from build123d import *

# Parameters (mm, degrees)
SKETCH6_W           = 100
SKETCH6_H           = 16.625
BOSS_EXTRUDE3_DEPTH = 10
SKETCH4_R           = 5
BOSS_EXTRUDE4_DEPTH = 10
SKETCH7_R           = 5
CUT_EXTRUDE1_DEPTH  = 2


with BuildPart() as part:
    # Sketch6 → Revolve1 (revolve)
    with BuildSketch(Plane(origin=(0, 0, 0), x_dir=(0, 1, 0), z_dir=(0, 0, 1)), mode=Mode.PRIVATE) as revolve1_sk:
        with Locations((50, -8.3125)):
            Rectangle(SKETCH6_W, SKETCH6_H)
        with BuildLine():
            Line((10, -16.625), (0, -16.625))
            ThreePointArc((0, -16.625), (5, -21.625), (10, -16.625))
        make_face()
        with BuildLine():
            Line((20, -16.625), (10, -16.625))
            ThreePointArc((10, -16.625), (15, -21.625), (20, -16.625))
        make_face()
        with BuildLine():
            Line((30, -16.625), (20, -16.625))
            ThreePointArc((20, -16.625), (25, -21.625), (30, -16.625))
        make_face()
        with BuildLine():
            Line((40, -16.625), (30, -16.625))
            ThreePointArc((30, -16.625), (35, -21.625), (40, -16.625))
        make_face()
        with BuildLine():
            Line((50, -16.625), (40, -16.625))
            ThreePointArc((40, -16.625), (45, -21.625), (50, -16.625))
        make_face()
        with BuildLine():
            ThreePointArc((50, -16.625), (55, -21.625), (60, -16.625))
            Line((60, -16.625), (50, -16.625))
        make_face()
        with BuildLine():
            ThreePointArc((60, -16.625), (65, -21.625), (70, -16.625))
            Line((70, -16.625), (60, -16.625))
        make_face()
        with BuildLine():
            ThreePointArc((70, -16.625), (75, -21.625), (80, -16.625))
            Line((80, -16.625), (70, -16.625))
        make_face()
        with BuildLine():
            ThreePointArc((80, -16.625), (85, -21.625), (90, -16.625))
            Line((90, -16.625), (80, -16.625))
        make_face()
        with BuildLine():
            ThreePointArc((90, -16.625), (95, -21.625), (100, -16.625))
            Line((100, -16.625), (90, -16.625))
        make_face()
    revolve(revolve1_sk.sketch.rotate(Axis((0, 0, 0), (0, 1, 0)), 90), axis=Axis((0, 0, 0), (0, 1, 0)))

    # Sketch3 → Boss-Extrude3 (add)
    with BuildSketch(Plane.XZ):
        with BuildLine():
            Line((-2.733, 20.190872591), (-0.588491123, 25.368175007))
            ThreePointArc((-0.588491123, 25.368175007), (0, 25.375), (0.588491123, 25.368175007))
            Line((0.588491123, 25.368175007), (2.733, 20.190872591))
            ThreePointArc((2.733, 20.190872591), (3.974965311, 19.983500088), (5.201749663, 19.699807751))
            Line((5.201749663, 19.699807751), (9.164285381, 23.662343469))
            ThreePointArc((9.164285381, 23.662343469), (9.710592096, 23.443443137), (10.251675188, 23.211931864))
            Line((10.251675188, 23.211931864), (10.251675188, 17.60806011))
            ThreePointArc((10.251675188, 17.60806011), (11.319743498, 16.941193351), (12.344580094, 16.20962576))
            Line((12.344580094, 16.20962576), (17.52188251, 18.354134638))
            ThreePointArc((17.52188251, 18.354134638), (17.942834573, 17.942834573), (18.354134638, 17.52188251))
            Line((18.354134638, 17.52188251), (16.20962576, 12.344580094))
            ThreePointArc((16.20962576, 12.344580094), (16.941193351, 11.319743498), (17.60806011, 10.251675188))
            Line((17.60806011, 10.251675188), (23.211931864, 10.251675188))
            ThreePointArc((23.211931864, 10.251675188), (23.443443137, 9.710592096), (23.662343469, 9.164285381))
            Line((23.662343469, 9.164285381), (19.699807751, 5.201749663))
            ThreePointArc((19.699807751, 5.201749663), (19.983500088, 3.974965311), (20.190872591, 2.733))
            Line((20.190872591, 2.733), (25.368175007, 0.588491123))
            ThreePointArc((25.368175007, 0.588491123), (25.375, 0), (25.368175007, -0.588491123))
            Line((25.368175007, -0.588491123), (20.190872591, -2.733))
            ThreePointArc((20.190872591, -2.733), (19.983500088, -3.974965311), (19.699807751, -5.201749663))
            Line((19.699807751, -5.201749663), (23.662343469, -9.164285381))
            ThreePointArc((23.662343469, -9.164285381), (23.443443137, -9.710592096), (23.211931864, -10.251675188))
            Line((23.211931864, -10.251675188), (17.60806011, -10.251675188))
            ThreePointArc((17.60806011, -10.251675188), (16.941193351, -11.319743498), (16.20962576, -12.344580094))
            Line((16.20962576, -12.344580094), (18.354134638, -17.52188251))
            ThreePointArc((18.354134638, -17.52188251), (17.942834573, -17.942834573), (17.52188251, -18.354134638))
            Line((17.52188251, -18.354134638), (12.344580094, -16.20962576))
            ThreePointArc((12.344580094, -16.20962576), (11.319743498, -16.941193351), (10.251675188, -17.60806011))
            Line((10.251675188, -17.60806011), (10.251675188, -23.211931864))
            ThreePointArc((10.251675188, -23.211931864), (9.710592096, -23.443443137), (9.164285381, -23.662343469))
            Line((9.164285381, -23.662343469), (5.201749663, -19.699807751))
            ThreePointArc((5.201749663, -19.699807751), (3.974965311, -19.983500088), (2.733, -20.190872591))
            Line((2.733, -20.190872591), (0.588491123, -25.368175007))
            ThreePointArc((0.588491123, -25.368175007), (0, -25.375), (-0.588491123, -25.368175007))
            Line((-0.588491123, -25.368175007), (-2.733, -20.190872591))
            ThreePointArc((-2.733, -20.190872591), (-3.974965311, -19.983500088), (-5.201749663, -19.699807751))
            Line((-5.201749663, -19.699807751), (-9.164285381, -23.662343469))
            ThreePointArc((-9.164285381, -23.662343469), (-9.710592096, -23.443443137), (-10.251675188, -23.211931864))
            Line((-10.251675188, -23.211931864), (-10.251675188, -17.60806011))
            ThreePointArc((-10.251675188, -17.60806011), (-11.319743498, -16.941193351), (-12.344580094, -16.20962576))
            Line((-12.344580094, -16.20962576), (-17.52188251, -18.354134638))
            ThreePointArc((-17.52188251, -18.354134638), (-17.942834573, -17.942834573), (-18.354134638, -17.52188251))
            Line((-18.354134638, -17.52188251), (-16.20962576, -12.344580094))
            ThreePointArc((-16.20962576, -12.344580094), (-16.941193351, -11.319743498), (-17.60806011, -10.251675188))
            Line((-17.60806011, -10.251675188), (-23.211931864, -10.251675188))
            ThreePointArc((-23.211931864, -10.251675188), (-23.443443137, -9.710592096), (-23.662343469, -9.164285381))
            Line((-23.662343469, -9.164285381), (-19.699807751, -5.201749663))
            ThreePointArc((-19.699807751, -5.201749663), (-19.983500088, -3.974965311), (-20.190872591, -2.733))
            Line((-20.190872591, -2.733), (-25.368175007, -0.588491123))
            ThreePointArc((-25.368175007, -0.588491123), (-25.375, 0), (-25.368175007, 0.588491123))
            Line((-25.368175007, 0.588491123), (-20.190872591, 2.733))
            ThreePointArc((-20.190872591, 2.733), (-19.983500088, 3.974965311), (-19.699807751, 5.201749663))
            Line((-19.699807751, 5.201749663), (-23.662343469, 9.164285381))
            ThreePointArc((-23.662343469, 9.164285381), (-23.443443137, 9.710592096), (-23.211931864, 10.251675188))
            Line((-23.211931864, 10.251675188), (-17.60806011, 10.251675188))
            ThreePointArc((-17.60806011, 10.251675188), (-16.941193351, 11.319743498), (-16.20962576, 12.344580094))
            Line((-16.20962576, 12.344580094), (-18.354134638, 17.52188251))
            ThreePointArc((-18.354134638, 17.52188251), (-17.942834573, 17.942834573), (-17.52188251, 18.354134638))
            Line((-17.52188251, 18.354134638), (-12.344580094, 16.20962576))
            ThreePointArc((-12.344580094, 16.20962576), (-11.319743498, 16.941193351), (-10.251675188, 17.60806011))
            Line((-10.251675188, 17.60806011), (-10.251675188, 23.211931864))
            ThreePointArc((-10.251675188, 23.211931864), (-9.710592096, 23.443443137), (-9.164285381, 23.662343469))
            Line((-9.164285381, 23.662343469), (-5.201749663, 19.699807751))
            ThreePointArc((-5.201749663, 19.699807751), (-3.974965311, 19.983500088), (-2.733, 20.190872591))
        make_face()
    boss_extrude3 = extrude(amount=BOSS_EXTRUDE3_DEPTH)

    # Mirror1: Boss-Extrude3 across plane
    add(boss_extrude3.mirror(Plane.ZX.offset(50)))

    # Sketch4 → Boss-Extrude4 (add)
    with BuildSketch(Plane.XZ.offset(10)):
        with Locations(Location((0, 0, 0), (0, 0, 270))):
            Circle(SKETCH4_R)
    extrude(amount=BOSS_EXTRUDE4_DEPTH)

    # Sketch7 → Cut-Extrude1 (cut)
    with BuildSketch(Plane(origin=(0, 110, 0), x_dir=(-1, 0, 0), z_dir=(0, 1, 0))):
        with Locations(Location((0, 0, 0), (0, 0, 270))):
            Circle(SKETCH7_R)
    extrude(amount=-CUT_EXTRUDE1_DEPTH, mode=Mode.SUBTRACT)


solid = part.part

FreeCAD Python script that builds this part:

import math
import FreeCAD as App
import Part
import Sketcher
from FreeCAD import Vector

doc = App.newDocument("Part")
body = doc.addObject("PartDesign::Body", "Body")

# Sketch on XY plane
sketch1 = body.newObject("Sketcher::SketchObject", "Sketch")
sketch1.AttachmentSupport = (doc.getObject("XY_Plane"), [""])
sketch1.MapMode = "FlatFace"
sketch1.addGeometry([
    Part.LineSegment(Vector(0, 0, 0), Vector(17, 0, 0)),  # 0
    Part.ArcOfCircle(Part.Circle(Vector(17, 5, 0), Vector(0, 0, 1), 5), math.radians(-90), math.radians(90)),  # 1
    Part.ArcOfCircle(Part.Circle(Vector(17, 15, 0), Vector(0, 0, 1), 5), math.radians(-90), math.radians(90)),  # 2
    Part.ArcOfCircle(Part.Circle(Vector(17, 25, 0), Vector(0, 0, 1), 5), math.radians(-90), math.radians(90)),  # 3
    Part.ArcOfCircle(Part.Circle(Vector(17, 35, 0), Vector(0, 0, 1), 5), math.radians(-90), math.radians(90)),  # 4
    Part.ArcOfCircle(Part.Circle(Vector(17, 45, 0), Vector(0, 0, 1), 5), math.radians(-90), math.radians(90)),  # 5
    Part.ArcOfCircle(Part.Circle(Vector(17, 55, 0), Vector(0, 0, 1), 5), math.radians(-90), math.radians(90)),  # 6
    Part.ArcOfCircle(Part.Circle(Vector(17, 65, 0), Vector(0, 0, 1), 5), math.radians(-90), math.radians(90)),  # 7
    Part.ArcOfCircle(Part.Circle(Vector(17, 75, 0), Vector(0, 0, 1), 5), math.radians(-90), math.radians(90)),  # 8
    Part.ArcOfCircle(Part.Circle(Vector(17, 85, 0), Vector(0, 0, 1), 5), math.radians(-90), math.radians(90)),  # 9
    Part.ArcOfCircle(Part.Circle(Vector(17, 95, 0), Vector(0, 0, 1), 5), math.radians(-90), math.radians(90)),  # 10
    Part.LineSegment(Vector(17, 100, 0), Vector(0, 100, 0)),  # 11
    Part.LineSegment(Vector(0, 100, 0), Vector(0, 0, 0)),  # 12
], False)
sketch1.addConstraint([
    Sketcher.Constraint("Tangent", 0, 2, 1, 1),
    Sketcher.Constraint("Tangent", 1, 2, 2, 1),
    Sketcher.Constraint("Tangent", 2, 2, 3, 1),
    Sketcher.Constraint("Tangent", 3, 2, 4, 1),
    Sketcher.Constraint("Tangent", 4, 2, 5, 1),
    Sketcher.Constraint("Tangent", 5, 2, 6, 1),
    Sketcher.Constraint("Tangent", 6, 2, 7, 1),
    Sketcher.Constraint("Tangent", 7, 2, 8, 1),
    Sketcher.Constraint("Tangent", 8, 2, 9, 1),
    Sketcher.Constraint("Tangent", 9, 2, 10, 1),
    Sketcher.Constraint("Tangent", 10, 2, 11, 1),
    Sketcher.Constraint("Coincident", 11, 2, 12, 1),
    Sketcher.Constraint("Coincident", 12, 2, 0, 1),
    Sketcher.Constraint("Horizontal", 0),
    Sketcher.Constraint("Horizontal", 11),
    Sketcher.Constraint("Vertical", 12),
    Sketcher.Constraint("Coincident", 12, 2, -1, 1),
    Sketcher.Constraint("Equal", 1, 2),
    Sketcher.Constraint("Equal", 2, 3),
    Sketcher.Constraint("Equal", 3, 4),
    Sketcher.Constraint("Equal", 4, 5),
    Sketcher.Constraint("Equal", 5, 6),
    Sketcher.Constraint("Equal", 6, 7),
    Sketcher.Constraint("Equal", 7, 8),
    Sketcher.Constraint("Equal", 8, 9),
    Sketcher.Constraint("Equal", 9, 10),
    Sketcher.Constraint("Vertical", 1, 3, 2, 3),
    Sketcher.Constraint("Vertical", 2, 3, 3, 3),
    Sketcher.Constraint("Vertical", 3, 3, 4, 3),
    Sketcher.Constraint("Vertical", 4, 3, 5, 3),
    Sketcher.Constraint("Vertical", 5, 3, 6, 3),
    Sketcher.Constraint("Vertical", 6, 3, 7, 3),
    Sketcher.Constraint("Vertical", 7, 3, 8, 3),
    Sketcher.Constraint("Vertical", 8, 3, 9, 3),
    Sketcher.Constraint("Vertical", 9, 3, 10, 3),
    Sketcher.Constraint("Radius", 1, 5.0),
    Sketcher.Constraint("DistanceX", 0, 1, 0, 2, 16.625),
])
revolution = body.newObject("PartDesign::Revolution", "Revolution")
revolution.Profile = sketch1
revolution.ReferenceAxis = (sketch1, ["V_Axis"])
revolution.Angle = 360

# Sketch on XZ plane
sketch2 = body.newObject("Sketcher::SketchObject", "Sketch001")
sketch2.AttachmentSupport = (doc.getObject("XZ_Plane"), [""])
sketch2.MapMode = "FlatFace"
sketch2.addGeometry([
    Part.LineSegment(Vector(-0.588491, 25.368175, 0), Vector(-2.733, 20.190873, 0)),  # 0
    Part.ArcOfCircle(Part.Circle(Vector(0, 0, 0), Vector(0, 0, 1), 20.375), math.radians(97.708602), math.radians(104.791398)),  # 1
    Part.LineSegment(Vector(-5.20175, 19.699808, 0), Vector(-9.164285, 23.662343, 0)),  # 2
    Part.ArcOfCircle(Part.Circle(Vector(0.000001, -0.000002, 0), Vector(0, 0, 1), 25.375002), math.radians(111.17109), math.radians(113.828909)),  # 3
    Part.LineSegment(Vector(-10.251675, 23.211932, 0), Vector(-10.251675, 17.60806, 0)),  # 4
    Part.ArcOfCircle(Part.Circle(Vector(0, 0, 0), Vector(0, 0, 1), 20.375), math.radians(120.208602), math.radians(127.291398)),  # 5
    Part.LineSegment(Vector(-12.34458, 16.209626, 0), Vector(-17.521883, 18.354135, 0)),  # 6
    Part.ArcOfCircle(Part.Circle(Vector(-0.000001, 0.000001, 0), Vector(0, 0, 1), 25.374998), math.radians(133.67109), math.radians(136.32891)),  # 7
    Part.LineSegment(Vector(-18.354135, 17.521883, 0), Vector(-16.209626, 12.34458, 0)),  # 8
    Part.ArcOfCircle(Part.Circle(Vector(0, 0, 0), Vector(0, 0, 1), 20.375), math.radians(142.708602), math.radians(149.791398)),  # 9
    Part.LineSegment(Vector(-17.60806, 10.251675, 0), Vector(-23.211932, 10.251675, 0)),  # 10
    Part.ArcOfCircle(Part.Circle(Vector(0.000002, -0.000001, 0), Vector(0, 0, 1), 25.375002), math.radians(156.171091), math.radians(158.82891)),  # 11
    Part.LineSegment(Vector(-23.662343, 9.164285, 0), Vector(-19.699808, 5.20175, 0)),  # 12
    Part.ArcOfCircle(Part.Circle(Vector(0, 0, 0), Vector(0, 0, 1), 20.375), math.radians(165.208602), math.radians(172.291398)),  # 13
    Part.LineSegment(Vector(-20.190873, 2.733, 0), Vector(-25.368175, 0.588491, 0)),  # 14
    Part.ArcOfCircle(Part.Circle(Vector(-0.000001, 0, 0), Vector(0, 0, 1), 25.374999), math.radians(178.67109), math.radians(181.32891)),  # 15
    Part.LineSegment(Vector(-25.368175, -0.588491, 0), Vector(-20.190873, -2.733, 0)),  # 16
    Part.ArcOfCircle(Part.Circle(Vector(0, 0, 0), Vector(0, 0, 1), 20.375), math.radians(-172.291398), math.radians(-165.208602)),  # 17
    Part.LineSegment(Vector(-19.699808, -5.20175, 0), Vector(-23.662343, -9.164285, 0)),  # 18
    Part.ArcOfCircle(Part.Circle(Vector(0.000002, 0.000001, 0), Vector(0, 0, 1), 25.375002), math.radians(-158.82891), math.radians(-156.171091)),  # 19
    Part.LineSegment(Vector(-23.211932, -10.251675, 0), Vector(-17.60806, -10.251675, 0)),  # 20
    Part.ArcOfCircle(Part.Circle(Vector(0, 0, 0), Vector(0, 0, 1), 20.375), math.radians(-149.791398), math.radians(-142.708602)),  # 21
    Part.LineSegment(Vector(-16.209626, -12.34458, 0), Vector(-18.354135, -17.521883, 0)),  # 22
    Part.ArcOfCircle(Part.Circle(Vector(-0.000001, -0.000001, 0), Vector(0, 0, 1), 25.374998), math.radians(-136.32891), math.radians(-133.67109)),  # 23
    Part.LineSegment(Vector(-17.521883, -18.354135, 0), Vector(-12.34458, -16.209626, 0)),  # 24
    Part.ArcOfCircle(Part.Circle(Vector(0, 0, 0), Vector(0, 0, 1), 20.375), math.radians(-127.291398), math.radians(-120.208602)),  # 25
    Part.LineSegment(Vector(-10.251675, -17.60806, 0), Vector(-10.251675, -23.211932, 0)),  # 26
    Part.ArcOfCircle(Part.Circle(Vector(0.000001, 0.000002, 0), Vector(0, 0, 1), 25.375002), math.radians(-113.828909), math.radians(-111.17109)),  # 27
    Part.LineSegment(Vector(-9.164285, -23.662343, 0), Vector(-5.20175, -19.699808, 0)),  # 28
    Part.ArcOfCircle(Part.Circle(Vector(0, 0, 0), Vector(0, 0, 1), 20.375), math.radians(-104.791398), math.radians(-97.708602)),  # 29
    Part.LineSegment(Vector(-2.733, -20.190873, 0), Vector(-0.588491, -25.368175, 0)),  # 30
    Part.ArcOfCircle(Part.Circle(Vector(0, -0.000001, 0), Vector(0, 0, 1), 25.374999), math.radians(-91.32891), math.radians(-88.67109)),  # 31
    Part.LineSegment(Vector(0.588491, -25.368175, 0), Vector(2.733, -20.190873, 0)),  # 32
    Part.ArcOfCircle(Part.Circle(Vector(0, 0, 0), Vector(0, 0, 1), 20.375), math.radians(-82.291398), math.radians(-75.208602)),  # 33
    Part.LineSegment(Vector(5.20175, -19.699808, 0), Vector(9.164285, -23.662343, 0)),  # 34
    Part.ArcOfCircle(Part.Circle(Vector(-0.000001, 0.000002, 0), Vector(0, 0, 1), 25.375002), math.radians(-68.82891), math.radians(-66.171091)),  # 35
    Part.LineSegment(Vector(10.251675, -23.211932, 0), Vector(10.251675, -17.60806, 0)),  # 36
    Part.ArcOfCircle(Part.Circle(Vector(0, 0, 0), Vector(0, 0, 1), 20.375), math.radians(-59.791398), math.radians(-52.708602)),  # 37
    Part.LineSegment(Vector(12.34458, -16.209626, 0), Vector(17.521883, -18.354135, 0)),  # 38
    Part.ArcOfCircle(Part.Circle(Vector(0.000001, -0.000001, 0), Vector(0, 0, 1), 25.374998), math.radians(-46.32891), math.radians(-43.67109)),  # 39
    Part.LineSegment(Vector(18.354135, -17.521883, 0), Vector(16.209626, -12.34458, 0)),  # 40
    Part.ArcOfCircle(Part.Circle(Vector(0, 0, 0), Vector(0, 0, 1), 20.375), math.radians(-37.291398), math.radians(-30.208602)),  # 41
    Part.LineSegment(Vector(17.60806, -10.251675, 0), Vector(23.211932, -10.251675, 0)),  # 42
    Part.ArcOfCircle(Part.Circle(Vector(-0.000002, 0.000001, 0), Vector(0, 0, 1), 25.375002), math.radians(-23.828909), math.radians(-21.17109)),  # 43
    Part.LineSegment(Vector(23.662343, -9.164285, 0), Vector(19.699808, -5.20175, 0)),  # 44
    Part.ArcOfCircle(Part.Circle(Vector(0, 0, 0), Vector(0, 0, 1), 20.375), math.radians(-14.791398), math.radians(-7.708602)),  # 45
    Part.LineSegment(Vector(20.190873, -2.733, 0), Vector(25.368175, -0.588491, 0)),  # 46
    Part.ArcOfCircle(Part.Circle(Vector(0.000001, 0, 0), Vector(0, 0, 1), 25.374999), math.radians(-1.32891), math.radians(1.32891)),  # 47
    Part.LineSegment(Vector(25.368175, 0.588491, 0), Vector(20.190873, 2.733, 0)),  # 48
    Part.ArcOfCircle(Part.Circle(Vector(0, 0, 0), Vector(0, 0, 1), 20.375), math.radians(7.708602), math.radians(14.791398)),  # 49
    Part.LineSegment(Vector(19.699808, 5.20175, 0), Vector(23.662343, 9.164285, 0)),  # 50
    Part.ArcOfCircle(Part.Circle(Vector(-0.000002, -0.000001, 0), Vector(0, 0, 1), 25.375002), math.radians(21.17109), math.radians(23.828909)),  # 51
    Part.LineSegment(Vector(23.211932, 10.251675, 0), Vector(17.60806, 10.251675, 0)),  # 52
    Part.ArcOfCircle(Part.Circle(Vector(0, 0, 0), Vector(0, 0, 1), 20.375), math.radians(30.208602), math.radians(37.291398)),  # 53
    Part.LineSegment(Vector(16.209626, 12.34458, 0), Vector(18.354135, 17.521883, 0)),  # 54
    Part.ArcOfCircle(Part.Circle(Vector(0.000001, 0.000001, 0), Vector(0, 0, 1), 25.374998), math.radians(43.67109), math.radians(46.32891)),  # 55
    Part.LineSegment(Vector(17.521883, 18.354135, 0), Vector(12.34458, 16.209626, 0)),  # 56
    Part.ArcOfCircle(Part.Circle(Vector(0, 0, 0), Vector(0, 0, 1), 20.375), math.radians(52.708602), math.radians(59.791398)),  # 57
    Part.LineSegment(Vector(10.251675, 17.60806, 0), Vector(10.251675, 23.211932, 0)),  # 58
    Part.ArcOfCircle(Part.Circle(Vector(-0.000001, -0.000002, 0), Vector(0, 0, 1), 25.375002), math.radians(66.171091), math.radians(68.82891)),  # 59
    Part.LineSegment(Vector(9.164285, 23.662343, 0), Vector(5.20175, 19.699808, 0)),  # 60
    Part.ArcOfCircle(Part.Circle(Vector(0, 0, 0), Vector(0, 0, 1), 20.375), math.radians(75.208602), math.radians(82.291398)),  # 61
    Part.LineSegment(Vector(2.733, 20.190873, 0), Vector(0.588491, 25.368175, 0)),  # 62
    Part.ArcOfCircle(Part.Circle(Vector(0, 0.000001, 0), Vector(0, 0, 1), 25.374999), math.radians(88.67109), math.radians(91.32891)),  # 63
], False)
sketch2.addConstraint([
    Sketcher.Constraint("Coincident", 0, 2, 1, 1),
    Sketcher.Constraint("Coincident", 1, 2, 2, 1),
    Sketcher.Constraint("Coincident", 2, 2, 3, 1),
    Sketcher.Constraint("Coincident", 3, 2, 4, 1),
    Sketcher.Constraint("Coincident", 4, 2, 5, 1),
    Sketcher.Constraint("Coincident", 5, 2, 6, 1),
    Sketcher.Constraint("Coincident", 6, 2, 7, 1),
    Sketcher.Constraint("Coincident", 7, 2, 8, 1),
    Sketcher.Constraint("Coincident", 8, 2, 9, 1),
    Sketcher.Constraint("Coincident", 9, 2, 10, 1),
    Sketcher.Constraint("Coincident", 10, 2, 11, 1),
    Sketcher.Constraint("Coincident", 11, 2, 12, 1),
    Sketcher.Constraint("Coincident", 12, 2, 13, 1),
    Sketcher.Constraint("Coincident", 13, 2, 14, 1),
    Sketcher.Constraint("Coincident", 14, 2, 15, 1),
    Sketcher.Constraint("Coincident", 15, 2, 16, 1),
    Sketcher.Constraint("Coincident", 16, 2, 17, 1),
    Sketcher.Constraint("Coincident", 17, 2, 18, 1),
    Sketcher.Constraint("Coincident", 18, 2, 19, 1),
    Sketcher.Constraint("Coincident", 19, 2, 20, 1),
    Sketcher.Constraint("Coincident", 20, 2, 21, 1),
    Sketcher.Constraint("Coincident", 21, 2, 22, 1),
    Sketcher.Constraint("Coincident", 22, 2, 23, 1),
    Sketcher.Constraint("Coincident", 23, 2, 24, 1),
    Sketcher.Constraint("Coincident", 24, 2, 25, 1),
    Sketcher.Constraint("Coincident", 25, 2, 26, 1),
    Sketcher.Constraint("Coincident", 26, 2, 27, 1),
    Sketcher.Constraint("Coincident", 27, 2, 28, 1),
    Sketcher.Constraint("Coincident", 28, 2, 29, 1),
    Sketcher.Constraint("Coincident", 29, 2, 30, 1),
    Sketcher.Constraint("Coincident", 30, 2, 31, 1),
    Sketcher.Constraint("Coincident", 31, 2, 32, 1),
    Sketcher.Constraint("Coincident", 32, 2, 33, 1),
    Sketcher.Constraint("Coincident", 33, 2, 34, 1),
    Sketcher.Constraint("Coincident", 34, 2, 35, 1),
    Sketcher.Constraint("Coincident", 35, 2, 36, 1),
    Sketcher.Constraint("Coincident", 36, 2, 37, 1),
    Sketcher.Constraint("Coincident", 37, 2, 38, 1),
    Sketcher.Constraint("Coincident", 38, 2, 39, 1),
    Sketcher.Constraint("Coincident", 39, 2, 40, 1),
    Sketcher.Constraint("Coincident", 40, 2, 41, 1),
    Sketcher.Constraint("Coincident", 41, 2, 42, 1),
    Sketcher.Constraint("Coincident", 42, 2, 43, 1),
    Sketcher.Constraint("Coincident", 43, 2, 44, 1),
    Sketcher.Constraint("Coincident", 44, 2, 45, 1),
    Sketcher.Constraint("Coincident", 45, 2, 46, 1),
    Sketcher.Constraint("Coincident", 46, 2, 47, 1),
    Sketcher.Constraint("Coincident", 47, 2, 48, 1),
    Sketcher.Constraint("Coincident", 48, 2, 49, 1),
    Sketcher.Constraint("Coincident", 49, 2, 50, 1),
    Sketcher.Constraint("Coincident", 50, 2, 51, 1),
    Sketcher.Constraint("Coincident", 51, 2, 52, 1),
    Sketcher.Constraint("Coincident", 52, 2, 53, 1),
    Sketcher.Constraint("Coincident", 53, 2, 54, 1),
    Sketcher.Constraint("Coincident", 54, 2, 55, 1),
    Sketcher.Constraint("Coincident", 55, 2, 56, 1),
    Sketcher.Constraint("Coincident", 56, 2, 57, 1),
    Sketcher.Constraint("Coincident", 57, 2, 58, 1),
    Sketcher.Constraint("Coincident", 58, 2, 59, 1),
    Sketcher.Constraint("Coincident", 59, 2, 60, 1),
    Sketcher.Constraint("Coincident", 60, 2, 61, 1),
    Sketcher.Constraint("Coincident", 61, 2, 62, 1),
    Sketcher.Constraint("Coincident", 62, 2, 63, 1),
    Sketcher.Constraint("Coincident", 63, 2, 0, 1),
    Sketcher.Constraint("Vertical", 4),
    Sketcher.Constraint("Horizontal", 10),
    Sketcher.Constraint("Horizontal", 20),
    Sketcher.Constraint("Vertical", 26),
    Sketcher.Constraint("Vertical", 36),
    Sketcher.Constraint("Horizontal", 42),
    Sketcher.Constraint("Horizontal", 52),
    Sketcher.Constraint("Vertical", 58),
    Sketcher.Constraint("Coincident", 1, 3, -1, 1),
    Sketcher.Constraint("Coincident", 3, 3, -1, 1),
    Sketcher.Constraint("Coincident", 5, 3, -1, 1),
    Sketcher.Constraint("Coincident", 7, 3, -1, 1),
    Sketcher.Constraint("Coincident", 9, 3, -1, 1),
    Sketcher.Constraint("Coincident", 11, 3, -1, 1),
    Sketcher.Constraint("Coincident", 13, 3, -1, 1),
    Sketcher.Constraint("Coincident", 15, 3, -1, 1),
    Sketcher.Constraint("Coincident", 17, 3, -1, 1),
    Sketcher.Constraint("Coincident", 19, 3, -1, 1),
    Sketcher.Constraint("Coincident", 21, 3, -1, 1),
    Sketcher.Constraint("Coincident", 23, 3, -1, 1),
    Sketcher.Constraint("Coincident", 25, 3, -1, 1),
    Sketcher.Constraint("Coincident", 27, 3, -1, 1),
    Sketcher.Constraint("Coincident", 29, 3, -1, 1),
    Sketcher.Constraint("Coincident", 31, 3, -1, 1),
    Sketcher.Constraint("Coincident", 33, 3, -1, 1),
    Sketcher.Constraint("Coincident", 35, 3, -1, 1),
    Sketcher.Constraint("Coincident", 37, 3, -1, 1),
    Sketcher.Constraint("Coincident", 39, 3, -1, 1),
    Sketcher.Constraint("Coincident", 41, 3, -1, 1),
    Sketcher.Constraint("Coincident", 43, 3, -1, 1),
    Sketcher.Constraint("Coincident", 45, 3, -1, 1),
    Sketcher.Constraint("Coincident", 47, 3, -1, 1),
    Sketcher.Constraint("Coincident", 49, 3, -1, 1),
    Sketcher.Constraint("Coincident", 51, 3, -1, 1),
    Sketcher.Constraint("Coincident", 53, 3, -1, 1),
    Sketcher.Constraint("Coincident", 55, 3, -1, 1),
    Sketcher.Constraint("Coincident", 57, 3, -1, 1),
    Sketcher.Constraint("Coincident", 59, 3, -1, 1),
    Sketcher.Constraint("Coincident", 61, 3, -1, 1),
    Sketcher.Constraint("Coincident", 63, 3, -1, 1),
    Sketcher.Constraint("Radius", 1, 20.375),
    Sketcher.Constraint("Radius", 5, 20.375),
    Sketcher.Constraint("Radius", 7, 25.374998),
    Sketcher.Constraint("Radius", 9, 20.375),
    Sketcher.Constraint("Radius", 13, 20.375),
    Sketcher.Constraint("Radius", 15, 25.374999),
    Sketcher.Constraint("Radius", 17, 20.375),
    Sketcher.Constraint("Radius", 21, 20.375),
    Sketcher.Constraint("Radius", 23, 25.374998),
    Sketcher.Constraint("Radius", 25, 20.375),
    Sketcher.Constraint("Radius", 29, 20.375),
    Sketcher.Constraint("Radius", 31, 25.374999),
    Sketcher.Constraint("Radius", 33, 20.375),
    Sketcher.Constraint("Radius", 37, 20.375),
    Sketcher.Constraint("Radius", 39, 25.374998),
    Sketcher.Constraint("Radius", 41, 20.375),
    Sketcher.Constraint("Radius", 45, 20.375),
    Sketcher.Constraint("Radius", 47, 25.374999),
    Sketcher.Constraint("Radius", 49, 20.375),
    Sketcher.Constraint("Radius", 53, 20.375),
    Sketcher.Constraint("Radius", 55, 25.374998),
    Sketcher.Constraint("Radius", 57, 20.375),
    Sketcher.Constraint("Radius", 61, 20.375),
    Sketcher.Constraint("Radius", 63, 25.374999),
    Sketcher.Constraint("DistanceX", 0, 2, -1, 1, 2.733),
    Sketcher.Constraint("DistanceY", -1, 1, 13, 2, 2.733),
    Sketcher.Constraint("DistanceY", 16, 2, -1, 1, 2.733),
    Sketcher.Constraint("DistanceX", 29, 2, -1, 1, 2.733),
    Sketcher.Constraint("DistanceX", -1, 1, 32, 2, 2.733),
    Sketcher.Constraint("DistanceY", 45, 2, -1, 1, 2.733),
    Sketcher.Constraint("DistanceY", -1, 1, 48, 2, 2.733),
    Sketcher.Constraint("DistanceX", -1, 1, 61, 2, 2.733),
    Sketcher.Constraint("Radius", 3, 25.375002),
    Sketcher.Constraint("Radius", 11, 25.375002),
    Sketcher.Constraint("Radius", 19, 25.375002),
    Sketcher.Constraint("Radius", 27, 25.375002),
    Sketcher.Constraint("Radius", 35, 25.375002),
    Sketcher.Constraint("Radius", 43, 25.375002),
    Sketcher.Constraint("Radius", 51, 25.375002),
    Sketcher.Constraint("Radius", 59, 25.375002),
    Sketcher.Constraint("DistanceX", 10, 2, 10, 1, 5.603872),
    Sketcher.Constraint("DistanceX", 20, 1, 20, 2, 5.603872),
    Sketcher.Constraint("DistanceX", 42, 1, 42, 2, 5.603872),
    Sketcher.Constraint("DistanceX", 52, 2, 52, 1, 5.603872),
    Sketcher.Constraint("DistanceY", 4, 2, 4, 1, 5.603872),
    Sketcher.Constraint("DistanceY", 26, 2, 26, 1, 5.603872),
    Sketcher.Constraint("DistanceY", 36, 1, 36, 2, 5.603872),
    Sketcher.Constraint("DistanceY", 58, 1, 58, 2, 5.603872),
    Sketcher.Constraint("Distance", 0, 5.603872),
    Sketcher.Constraint("Distance", 2, 5.603872),
    Sketcher.Constraint("Distance", 6, 5.603872),
    Sketcher.Constraint("Distance", 8, 5.603872),
    Sketcher.Constraint("Distance", 12, 5.603872),
    Sketcher.Constraint("Distance", 14, 5.603872),
    Sketcher.Constraint("Distance", 16, 5.603872),
    Sketcher.Constraint("Distance", 18, 5.603872),
    Sketcher.Constraint("Distance", 22, 5.603872),
    Sketcher.Constraint("Distance", 24, 5.603872),
    Sketcher.Constraint("Distance", 28, 5.603872),
    Sketcher.Constraint("Distance", 30, 5.603872),
    Sketcher.Constraint("Distance", 32, 5.603872),
    Sketcher.Constraint("Distance", 34, 5.603872),
    Sketcher.Constraint("Distance", 38, 5.603872),
    Sketcher.Constraint("Distance", 40, 5.603872),
    Sketcher.Constraint("Distance", 44, 5.603872),
    Sketcher.Constraint("Distance", 46, 5.603872),
    Sketcher.Constraint("Distance", 48, 5.603872),
    Sketcher.Constraint("Distance", 50, 5.603872),
    Sketcher.Constraint("Distance", 54, 5.603872),
    Sketcher.Constraint("Distance", 56, 5.603872),
    Sketcher.Constraint("Distance", 60, 5.603872),
    Sketcher.Constraint("Distance", 62, 5.603872),
    Sketcher.Constraint("DistanceX", 1, 2, -1, 1, 5.20175),
    Sketcher.Constraint("DistanceX", 5, 2, -1, 1, 12.34458),
    Sketcher.Constraint("DistanceY", -1, 1, 8, 2, 12.34458),
    Sketcher.Constraint("DistanceY", -1, 1, 12, 2, 5.20175),
    Sketcher.Constraint("DistanceY", 17, 2, -1, 1, 5.20175),
    Sketcher.Constraint("DistanceY", 21, 2, -1, 1, 12.34458),
    Sketcher.Constraint("DistanceX", 24, 2, -1, 1, 12.34458),
    Sketcher.Constraint("DistanceX", 28, 2, -1, 1, 5.20175),
    Sketcher.Constraint("DistanceX", -1, 1, 33, 2, 5.20175),
    Sketcher.Constraint("DistanceX", -1, 1, 37, 2, 12.34458),
    Sketcher.Constraint("DistanceY", 40, 2, -1, 1, 12.34458),
    Sketcher.Constraint("DistanceY", 44, 2, -1, 1, 5.20175),
    Sketcher.Constraint("DistanceY", -1, 1, 49, 2, 5.20175),
    Sketcher.Constraint("DistanceY", -1, 1, 53, 2, 12.34458),
    Sketcher.Constraint("DistanceX", -1, 1, 56, 2, 12.34458),
    Sketcher.Constraint("DistanceX", -1, 1, 60, 2, 5.20175),
])
pad1 = body.newObject("PartDesign::Pad", "Pad")
pad1.Profile = sketch2
pad1.Length = 10
doc.recompute()

datumplane = body.newObject("PartDesign::Plane", "DatumPlane")
datumplane.AttachmentSupport = (doc.getObject("XZ_Plane"), [""])
datumplane.MapMode = "FlatFace"
datumplane.AttachmentOffset = App.Placement(Vector(0, 0, -50), App.Rotation())
mirrored = body.newObject("PartDesign::Mirrored", "Mirrored")
mirrored.Originals = [pad1]
mirrored.MirrorPlane = (datumplane, [""])
body.Tip = mirrored

# Sketch on XZ plane
sketch3 = body.newObject("Sketcher::SketchObject", "Sketch002")
sketch3.AttachmentSupport = (doc.getObject("XZ_Plane"), [""])
sketch3.MapMode = "FlatFace"
sketch3.AttachmentOffset = App.Placement(Vector(0, 0, 10), App.Rotation())
sketch3.addGeometry(Part.Circle(Vector(0, 0, 0), Vector(0, 0, 1), 5), False)
sketch3.addConstraint([
    Sketcher.Constraint("Coincident", 0, 3, -1, 1),
    Sketcher.Constraint("Diameter", 0, 10.0),
])
pad2 = body.newObject("PartDesign::Pad", "Pad001")
pad2.Profile = sketch3
pad2.Length = 10

# Sketch on XZ plane
sketch4 = body.newObject("Sketcher::SketchObject", "Sketch003")
sketch4.AttachmentSupport = (doc.getObject("XZ_Plane"), [""])
sketch4.MapMode = "FlatFace"
sketch4.AttachmentOffset = App.Placement(Vector(0, 0, -110), App.Rotation())
sketch4.addGeometry(Part.Circle(Vector(0, 0, 0), Vector(0, 0, 1), 5), False)
sketch4.addConstraint([
    Sketcher.Constraint("Coincident", 0, 3, -1, 1),
    Sketcher.Constraint("Diameter", 0, 10.0),
])
pocket1 = body.newObject("PartDesign::Pocket", "Pocket")
pocket1.Profile = sketch4
pocket1.Length = 2
pocket1.Reversed = True

doc.recompute()
